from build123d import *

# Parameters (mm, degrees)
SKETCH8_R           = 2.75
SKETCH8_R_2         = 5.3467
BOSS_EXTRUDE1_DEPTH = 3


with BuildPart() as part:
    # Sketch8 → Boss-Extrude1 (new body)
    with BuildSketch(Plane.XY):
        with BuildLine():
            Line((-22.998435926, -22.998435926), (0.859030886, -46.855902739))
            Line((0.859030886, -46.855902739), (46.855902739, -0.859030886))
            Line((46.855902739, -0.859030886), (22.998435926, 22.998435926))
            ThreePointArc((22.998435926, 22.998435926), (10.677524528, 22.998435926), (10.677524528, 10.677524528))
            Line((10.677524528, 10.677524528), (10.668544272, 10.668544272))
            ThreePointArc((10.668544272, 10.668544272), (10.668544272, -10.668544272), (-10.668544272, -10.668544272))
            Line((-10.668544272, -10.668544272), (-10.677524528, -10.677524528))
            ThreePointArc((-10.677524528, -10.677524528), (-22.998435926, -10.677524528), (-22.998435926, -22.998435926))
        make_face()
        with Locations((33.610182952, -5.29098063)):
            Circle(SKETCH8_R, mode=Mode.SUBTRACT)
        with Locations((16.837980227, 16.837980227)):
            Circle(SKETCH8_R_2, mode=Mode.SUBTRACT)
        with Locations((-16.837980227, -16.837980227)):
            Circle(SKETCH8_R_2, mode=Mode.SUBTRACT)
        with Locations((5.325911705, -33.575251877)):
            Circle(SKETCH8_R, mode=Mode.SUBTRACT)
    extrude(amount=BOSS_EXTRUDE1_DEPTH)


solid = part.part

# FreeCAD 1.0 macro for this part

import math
import FreeCAD as App
import Part
import Sketcher

V = App.Vector
Q = App.Units.Quantity

doc = App.newDocument("Part")
body = doc.addObject("PartDesign::Body", "Body")

# Sketch on XY plane
sketch1 = doc.addObject("Sketcher::SketchObject", "Sketch")
body.addObject(sketch1)
sketch1.AttachmentSupport = (doc.XY_Plane, [""])
sketch1.MapMode = "FlatFace"
sketch1.addGeometry(Part.LineSegment(V(-22.998, -22.998, 0), V(0.859, -46.856, 0)), False)
sketch1.addGeometry(Part.LineSegment(V(0.859, -46.856, 0), V(46.856, -0.859, 0)), False)
sketch1.addGeometry(Part.LineSegment(V(46.856, -0.859, 0), V(22.998, 22.998, 0)), False)
sketch1.addGeometry(Part.ArcOfCircle(Part.Circle(V(16.838, 16.838, 0), V(0, 0, 1), 8.712), math.radians(45), math.radians(225)), False)
sketch1.addGeometry(Part.LineSegment(V(10.678, 10.678, 0), V(10.669, 10.669, 0)), False)
sketch1.addGeometry(Part.ArcOfCircle(Part.Circle(V(0, 0, 0), V(0, 0, 1), 15.088), math.radians(-135), math.radians(45)), False)
sketch1.addGeometry(Part.LineSegment(V(-10.669, -10.669, 0), V(-10.678, -10.678, 0)), False)
sketch1.addGeometry(Part.ArcOfCircle(Part.Circle(V(-16.838, -16.838, 0), V(0, 0, 1), 8.712), math.radians(45), math.radians(225)), False)
sketch1.addGeometry(Part.Circle(V(5.326, -33.575, 0), V(0, 0, 1), 2.75), False)
sketch1.addGeometry(Part.Circle(V(-16.838, -16.838, 0), V(0, 0, 1), 5.347), False)
sketch1.addGeometry(Part.Circle(V(33.61, -5.291, 0), V(0, 0, 1), 2.75), False)
sketch1.addGeometry(Part.Circle(V(16.838, 16.838, 0), V(0, 0, 1), 5.347), False)
sketch1.addConstraint(Sketcher.Constraint("Coincident", 0, 2, 1, 1))
sketch1.addConstraint(Sketcher.Constraint("Coincident", 1, 2, 2, 1))
sketch1.addConstraint(Sketcher.Constraint("Tangent", 2, 2, 3, 1))
sketch1.addConstraint(Sketcher.Constraint("Coincident", 3, 2, 4, 1))
sketch1.addConstraint(Sketcher.Constraint("Coincident", 4, 2, 5, 2))
sketch1.addConstraint(Sketcher.Constraint("Coincident", 5, 1, 6, 1))
sketch1.addConstraint(Sketcher.Constraint("Coincident", 6, 2, 7, 1))
sketch1.addConstraint(Sketcher.Constraint("Tangent", 7, 2, 0, 1))
sketch1.addConstraint(Sketcher.Constraint("Coincident", 5, 3, -1, 1))
sketch1.addConstraint(Sketcher.Constraint("Coincident", 9, 3, 7, 3))
sketch1.addConstraint(Sketcher.Constraint("Coincident", 11, 3, 3, 3))
sketch1.addConstraint(Sketcher.Constraint("Equal", 3, 7))
sketch1.addConstraint(Sketcher.Constraint("Equal", 8, 10))
sketch1.addConstraint(Sketcher.Constraint("Equal", 9, 11))
sketch1.addConstraint(Sketcher.Constraint("Symmetric", 3, 3, 7, 3, -1, 1))
sketch1.addConstraint(Sketcher.Constraint("Perpendicular", 0, 1))
sketch1.addConstraint(Sketcher.Constraint("Perpendicular", 1, 2))
sketch1.addConstraint(Sketcher.Constraint("Perpendicular", 2, 4))
sketch1.addConstraint(Sketcher.Constraint("Parallel", 4, 6))
sketch1.addConstraint(Sketcher.Constraint("Equal", 0, 2))
sketch1.addConstraint(Sketcher.Constraint("Diameter", 9, Q("0.421 in")))
sketch1.addConstraint(Sketcher.Constraint("Angle", 0, Q("-45 deg")))
sketch1.addConstraint(Sketcher.Constraint("Radius", 3, Q("0.343 in")))
sketch1.addConstraint(Sketcher.Constraint("Radius", 5, Q("0.594 in")))
sketch1.addConstraint(Sketcher.Constraint("Diameter", 8, Q("5.5 mm")))
sketch1.addConstraint(Sketcher.Constraint("Distance", 1, Q("2.561 in")))
sketch1.addConstraint(Sketcher.Constraint("DistanceY", 7, 3, 10, 3, Q("11.547 mm")))
sketch1.addConstraint(Sketcher.Constraint("DistanceX", -1, 1, 8, 3, Q("5.325912 mm")))
sketch1.addConstraint(Sketcher.Constraint("DistanceY", 8, 3, -1, 1, Q("33.575252 mm")))
sketch1.addConstraint(Sketcher.Constraint("DistanceX", -1, 1, 0, 2, Q("0.859031 mm")))
sketch1.addConstraint(Sketcher.Constraint("DistanceX", 8, 3, 10, 3, Q("28.284271 mm")))
sketch1.addConstraint(Sketcher.Constraint("DistanceX", 3, 2, 2, 2, Q("12.320911 mm")))
sketch1.addConstraint(Sketcher.Constraint("DistanceX", 5, 1, 4, 2, Q("21.337089 mm")))
pad1 = doc.addObject("PartDesign::Pad", "Pad")
body.addObject(pad1)
pad1.Profile = sketch1
pad1.Length = 3

doc.recompute()
